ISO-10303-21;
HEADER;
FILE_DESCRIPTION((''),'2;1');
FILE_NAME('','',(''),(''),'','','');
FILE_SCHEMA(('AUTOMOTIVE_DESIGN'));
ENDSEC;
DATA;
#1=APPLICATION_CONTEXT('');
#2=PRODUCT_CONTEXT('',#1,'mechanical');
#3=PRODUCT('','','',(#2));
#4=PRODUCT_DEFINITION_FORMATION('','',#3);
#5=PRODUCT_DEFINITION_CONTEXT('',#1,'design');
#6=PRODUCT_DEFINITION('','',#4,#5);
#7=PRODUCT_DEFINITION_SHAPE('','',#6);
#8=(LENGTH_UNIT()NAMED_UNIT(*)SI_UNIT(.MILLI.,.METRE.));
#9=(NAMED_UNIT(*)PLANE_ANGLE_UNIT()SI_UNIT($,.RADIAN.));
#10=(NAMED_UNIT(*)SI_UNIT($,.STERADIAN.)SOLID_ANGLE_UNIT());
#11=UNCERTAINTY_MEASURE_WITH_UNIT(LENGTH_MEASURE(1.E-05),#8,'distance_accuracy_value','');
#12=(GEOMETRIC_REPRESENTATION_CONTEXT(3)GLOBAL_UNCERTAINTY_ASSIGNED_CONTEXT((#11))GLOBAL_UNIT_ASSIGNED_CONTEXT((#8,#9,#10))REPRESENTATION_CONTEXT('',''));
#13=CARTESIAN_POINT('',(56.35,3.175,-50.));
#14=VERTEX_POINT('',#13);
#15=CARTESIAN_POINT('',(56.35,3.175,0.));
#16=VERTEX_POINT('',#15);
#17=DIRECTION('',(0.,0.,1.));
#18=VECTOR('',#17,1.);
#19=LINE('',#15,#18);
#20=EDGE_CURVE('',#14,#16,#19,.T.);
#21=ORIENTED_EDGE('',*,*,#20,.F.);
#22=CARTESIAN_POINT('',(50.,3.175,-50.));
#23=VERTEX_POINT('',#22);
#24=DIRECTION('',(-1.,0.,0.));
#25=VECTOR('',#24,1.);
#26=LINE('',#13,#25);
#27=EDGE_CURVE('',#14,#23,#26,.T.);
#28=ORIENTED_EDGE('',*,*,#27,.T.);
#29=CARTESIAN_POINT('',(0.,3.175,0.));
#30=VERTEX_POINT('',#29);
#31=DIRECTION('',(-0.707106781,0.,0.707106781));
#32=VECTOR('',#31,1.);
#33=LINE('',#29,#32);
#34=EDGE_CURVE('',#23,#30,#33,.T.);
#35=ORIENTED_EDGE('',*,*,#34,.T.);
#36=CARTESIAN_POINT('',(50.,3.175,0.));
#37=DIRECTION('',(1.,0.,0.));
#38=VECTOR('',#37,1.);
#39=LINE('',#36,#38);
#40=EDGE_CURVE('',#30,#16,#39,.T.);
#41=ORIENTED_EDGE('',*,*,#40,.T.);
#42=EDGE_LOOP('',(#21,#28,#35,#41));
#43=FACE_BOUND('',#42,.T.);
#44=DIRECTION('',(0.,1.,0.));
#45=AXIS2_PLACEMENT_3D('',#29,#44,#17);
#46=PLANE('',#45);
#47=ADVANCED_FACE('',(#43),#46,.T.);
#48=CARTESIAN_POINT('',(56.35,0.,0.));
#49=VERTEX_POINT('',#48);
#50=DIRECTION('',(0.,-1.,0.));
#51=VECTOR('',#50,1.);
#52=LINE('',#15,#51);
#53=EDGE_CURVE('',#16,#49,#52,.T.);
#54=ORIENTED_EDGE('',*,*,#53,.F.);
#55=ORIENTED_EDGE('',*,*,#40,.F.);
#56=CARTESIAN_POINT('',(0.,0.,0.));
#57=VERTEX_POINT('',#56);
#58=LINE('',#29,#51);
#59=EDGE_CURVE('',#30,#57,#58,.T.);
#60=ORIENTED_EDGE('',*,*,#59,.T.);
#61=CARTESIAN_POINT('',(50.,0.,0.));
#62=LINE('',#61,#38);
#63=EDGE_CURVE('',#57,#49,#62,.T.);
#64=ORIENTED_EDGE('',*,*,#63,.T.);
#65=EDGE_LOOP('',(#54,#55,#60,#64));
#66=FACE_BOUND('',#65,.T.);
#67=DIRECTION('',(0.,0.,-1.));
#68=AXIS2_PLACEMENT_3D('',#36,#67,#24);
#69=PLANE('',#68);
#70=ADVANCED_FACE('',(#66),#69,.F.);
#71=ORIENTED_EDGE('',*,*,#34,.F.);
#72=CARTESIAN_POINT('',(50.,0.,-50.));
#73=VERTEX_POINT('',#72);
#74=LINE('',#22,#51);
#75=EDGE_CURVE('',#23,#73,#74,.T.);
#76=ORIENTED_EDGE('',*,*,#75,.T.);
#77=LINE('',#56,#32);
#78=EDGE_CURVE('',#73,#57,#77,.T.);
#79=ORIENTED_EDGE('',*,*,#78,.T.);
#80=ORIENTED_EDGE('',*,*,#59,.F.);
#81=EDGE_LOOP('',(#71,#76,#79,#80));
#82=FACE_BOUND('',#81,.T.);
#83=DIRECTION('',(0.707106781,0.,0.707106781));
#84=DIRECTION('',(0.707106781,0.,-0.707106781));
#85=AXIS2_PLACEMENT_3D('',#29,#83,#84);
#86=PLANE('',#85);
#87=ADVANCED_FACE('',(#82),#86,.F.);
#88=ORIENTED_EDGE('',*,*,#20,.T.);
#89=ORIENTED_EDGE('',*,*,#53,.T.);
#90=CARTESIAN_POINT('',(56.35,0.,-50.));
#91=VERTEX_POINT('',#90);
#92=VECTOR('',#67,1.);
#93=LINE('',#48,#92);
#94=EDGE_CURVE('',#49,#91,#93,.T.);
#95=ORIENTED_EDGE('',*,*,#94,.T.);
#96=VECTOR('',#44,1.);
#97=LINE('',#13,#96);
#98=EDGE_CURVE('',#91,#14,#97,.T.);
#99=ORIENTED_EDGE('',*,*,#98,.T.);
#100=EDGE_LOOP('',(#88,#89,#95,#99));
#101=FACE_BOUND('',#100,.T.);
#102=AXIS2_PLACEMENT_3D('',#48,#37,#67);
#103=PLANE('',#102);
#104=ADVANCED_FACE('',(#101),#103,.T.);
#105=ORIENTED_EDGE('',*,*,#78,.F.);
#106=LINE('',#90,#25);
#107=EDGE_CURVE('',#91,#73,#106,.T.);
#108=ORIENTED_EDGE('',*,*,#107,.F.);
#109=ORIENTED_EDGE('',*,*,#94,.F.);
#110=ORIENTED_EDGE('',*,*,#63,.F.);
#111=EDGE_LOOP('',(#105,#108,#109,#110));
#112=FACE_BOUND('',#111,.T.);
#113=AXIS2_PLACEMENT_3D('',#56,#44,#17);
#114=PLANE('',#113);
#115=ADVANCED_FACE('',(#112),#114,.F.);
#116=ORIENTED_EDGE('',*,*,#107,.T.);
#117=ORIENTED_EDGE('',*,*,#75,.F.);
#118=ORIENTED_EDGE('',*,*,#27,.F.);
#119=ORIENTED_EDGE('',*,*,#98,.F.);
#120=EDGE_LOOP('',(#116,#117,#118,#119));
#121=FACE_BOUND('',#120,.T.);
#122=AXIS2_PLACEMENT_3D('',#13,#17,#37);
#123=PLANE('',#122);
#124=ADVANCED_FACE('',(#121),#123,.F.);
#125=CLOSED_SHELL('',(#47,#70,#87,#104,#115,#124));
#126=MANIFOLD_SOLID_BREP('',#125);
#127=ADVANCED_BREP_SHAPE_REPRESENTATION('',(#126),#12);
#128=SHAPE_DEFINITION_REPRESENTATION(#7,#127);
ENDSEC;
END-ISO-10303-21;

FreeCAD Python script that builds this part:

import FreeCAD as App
import Part
import Sketcher
from FreeCAD import Vector
Q = App.Units.Quantity

doc = App.newDocument("Part")
params = doc.addObject("Spreadsheet::Sheet", "Params")
for row, (alias, value) in enumerate([
    ("pad1_length", "0.125 in"),
    ("sketch2_width", "0.125 in"),
    ("pad2_length", "0.25 in"),
], start=1):
    params.set(f"A{row}", alias)
    params.set(f"B{row}", "=" + value)
    params.setAlias(f"B{row}", alias)

body = doc.addObject("PartDesign::Body", "Body")

# Sketch on XZ plane
sketch1 = body.newObject("Sketcher::SketchObject", "Sketch")
sketch1.AttachmentSupport = (doc.getObject("XZ_Plane"), [""])
sketch1.MapMode = "FlatFace"
sketch1.addGeometry([
    Part.LineSegment(Vector(50, -50, 0), Vector(0, 0, 0)),
    Part.LineSegment(Vector(0, 0, 0), Vector(50, 0, 0)),
    Part.LineSegment(Vector(50, 0, 0), Vector(50, -50, 0)),
], False)
sketch1.addConstraint([
    Sketcher.Constraint("Coincident", 0, 2, 1, 1),
    Sketcher.Constraint("Coincident", 1, 2, 2, 1),
    Sketcher.Constraint("Coincident", 2, 2, 0, 1),
    Sketcher.Constraint("Horizontal", 1),
    Sketcher.Constraint("Vertical", 2),
    Sketcher.Constraint("Coincident", 0, 2, -1, 1),
    Sketcher.Constraint("Equal", 1, 2),
    Sketcher.Constraint("DistanceX", 1, 1, 1, 2, 50.0),
])
pad1 = body.newObject("PartDesign::Pad", "Pad")
pad1.Profile = sketch1
pad1.setExpression("Length", "Params.pad1_length")
pad1.Reversed = True

# Sketch on YZ plane
sketch2 = body.newObject("Sketcher::SketchObject", "Sketch001")
sketch2.AttachmentSupport = (doc.getObject("YZ_Plane"), [""])
sketch2.MapMode = "FlatFace"
sketch2.AttachmentOffset = App.Placement(Vector(0, 0, 50), App.Rotation())
sketch2.addGeometry([
    Part.LineSegment(Vector(3.175, 0, 0), Vector(0, 0, 0)),
    Part.LineSegment(Vector(0, 0, 0), Vector(0, -50, 0)),
    Part.LineSegment(Vector(0, -50, 0), Vector(3.175, -50, 0)),
    Part.LineSegment(Vector(3.175, -50, 0), Vector(3.175, 0, 0)),
], False)
sketch2.addConstraint([
    Sketcher.Constraint("Coincident", 0, 2, 1, 1),
    Sketcher.Constraint("Coincident", 1, 2, 2, 1),
    Sketcher.Constraint("Coincident", 2, 2, 3, 1),
    Sketcher.Constraint("Coincident", 3, 2, 0, 1),
    Sketcher.Constraint("Horizontal", 0),
    Sketcher.Constraint("Vertical", 1),
    Sketcher.Constraint("Horizontal", 2),
    Sketcher.Constraint("Vertical", 3),
    Sketcher.Constraint("Coincident", 0, 2, -1, 1),
    Sketcher.Constraint("DistanceX", 0, 2, 0, 1, Q("0.125 in")),
    Sketcher.Constraint("DistanceY", 1, 2, 1, 1, 50.0),
])
sketch2.setExpression("Constraints[9]", "Params.sketch2_width")
pad2 = body.newObject("PartDesign::Pad", "Pad001")
pad2.Profile = sketch2
pad2.setExpression("Length", "Params.pad2_length")

doc.recompute()
